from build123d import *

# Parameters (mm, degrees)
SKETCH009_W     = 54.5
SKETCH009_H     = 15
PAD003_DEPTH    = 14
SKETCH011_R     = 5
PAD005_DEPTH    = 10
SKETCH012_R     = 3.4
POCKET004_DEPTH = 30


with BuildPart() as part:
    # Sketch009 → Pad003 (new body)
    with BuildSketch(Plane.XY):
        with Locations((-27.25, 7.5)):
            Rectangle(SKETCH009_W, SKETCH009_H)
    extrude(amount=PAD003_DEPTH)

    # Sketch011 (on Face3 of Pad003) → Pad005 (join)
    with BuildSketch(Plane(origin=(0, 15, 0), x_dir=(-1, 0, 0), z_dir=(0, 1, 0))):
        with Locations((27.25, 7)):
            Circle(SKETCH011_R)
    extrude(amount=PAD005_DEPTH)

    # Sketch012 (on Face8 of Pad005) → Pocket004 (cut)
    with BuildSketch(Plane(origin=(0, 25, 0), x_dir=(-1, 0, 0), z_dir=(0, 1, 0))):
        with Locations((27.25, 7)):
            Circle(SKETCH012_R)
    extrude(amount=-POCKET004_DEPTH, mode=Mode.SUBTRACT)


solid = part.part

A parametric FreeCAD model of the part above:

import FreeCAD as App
import Part
import Sketcher
Q = App.Units.Quantity

doc = App.newDocument("Part")
body = doc.addObject("PartDesign::Body", "Body")

sketch1 = body.newObject("Sketcher::SketchObject", "Sketch")
sketch1.AttachmentSupport = (doc.getObject("XY_Plane"), [""])
sketch1.MapMode = "FlatFace"
sketch1.addGeometry(Part.LineSegment(App.Vector(-54, 15, 0), App.Vector(-54, 0, 0)), False)
sketch1.addGeometry(Part.LineSegment(App.Vector(-54, 0, 0), App.Vector(0, 0, 0)), False)
sketch1.addGeometry(Part.LineSegment(App.Vector(0, 0, 0), App.Vector(0, 15, 0)), False)
sketch1.addGeometry(Part.LineSegment(App.Vector(0, 15, 0), App.Vector(-54, 15, 0)), False)
sketch1.addConstraint(Sketcher.Constraint("Coincident", 0, 2, 1, 1))
sketch1.addConstraint(Sketcher.Constraint("Coincident", 1, 2, 2, 1))
sketch1.addConstraint(Sketcher.Constraint("Coincident", 2, 2, 3, 1))
sketch1.addConstraint(Sketcher.Constraint("Coincident", 3, 2, 0, 1))
sketch1.addConstraint(Sketcher.Constraint("Vertical", 0))
sketch1.addConstraint(Sketcher.Constraint("Horizontal", 1))
sketch1.addConstraint(Sketcher.Constraint("Vertical", 2))
sketch1.addConstraint(Sketcher.Constraint("Horizontal", 3))
sketch1.addConstraint(Sketcher.Constraint("Coincident", 1, 2, -1, 1))
sketch1.addConstraint(Sketcher.Constraint("DistanceY", 0, 2, 0, 1, Q("15 mm")))
sketch1.addConstraint(Sketcher.Constraint("DistanceX", 1, 1, 1, 2, Q("54.5 mm")))
pad1 = body.newObject("PartDesign::Pad", "Pad")
pad1.Profile = sketch1
pad1.Length = 14

sketch2 = body.newObject("Sketcher::SketchObject", "Sketch001")
sketch2.AttachmentSupport = (doc.getObject("XZ_Plane"), [""])
sketch2.MapMode = "FlatFace"
sketch2.AttachmentOffset = App.Placement(App.Vector(0, 0, -15), App.Rotation())
sketch2.addGeometry(Part.Circle(App.Vector(-27, 7, 0), App.Vector(0, 0, 1), 5), False)
sketch2.addConstraint(Sketcher.Constraint("Diameter", 0, Q("10 mm")))
sketch2.addConstraint(Sketcher.Constraint("DistanceY", -1, 1, 0, 3, Q("7 mm")))
sketch2.addConstraint(Sketcher.Constraint("DistanceX", 0, 3, -1, 1, Q("27.25 mm")))
pad2 = body.newObject("PartDesign::Pad", "Pad001")
pad2.Profile = sketch2
pad2.Length = 10
pad2.Reversed = True

sketch3 = body.newObject("Sketcher::SketchObject", "Sketch002")
sketch3.AttachmentSupport = (doc.getObject("XZ_Plane"), [""])
sketch3.MapMode = "FlatFace"
sketch3.AttachmentOffset = App.Placement(App.Vector(0, 0, -25), App.Rotation())
sketch3.addGeometry(Part.Circle(App.Vector(-27.2, 7, 0), App.Vector(0, 0, 1), 3.4), False)
sketch3.addConstraint(Sketcher.Constraint("Diameter", 0, Q("6.8 mm")))
sketch3.addConstraint(Sketcher.Constraint("DistanceY", -1, 1, 0, 3, Q("7 mm")))
sketch3.addConstraint(Sketcher.Constraint("DistanceX", 0, 3, -1, 1, Q("27.25 mm")))
pocket1 = body.newObject("PartDesign::Pocket", "Pocket")
pocket1.Profile = sketch3
pocket1.Length = 30
pocket1.Reversed = True

doc.recompute()
